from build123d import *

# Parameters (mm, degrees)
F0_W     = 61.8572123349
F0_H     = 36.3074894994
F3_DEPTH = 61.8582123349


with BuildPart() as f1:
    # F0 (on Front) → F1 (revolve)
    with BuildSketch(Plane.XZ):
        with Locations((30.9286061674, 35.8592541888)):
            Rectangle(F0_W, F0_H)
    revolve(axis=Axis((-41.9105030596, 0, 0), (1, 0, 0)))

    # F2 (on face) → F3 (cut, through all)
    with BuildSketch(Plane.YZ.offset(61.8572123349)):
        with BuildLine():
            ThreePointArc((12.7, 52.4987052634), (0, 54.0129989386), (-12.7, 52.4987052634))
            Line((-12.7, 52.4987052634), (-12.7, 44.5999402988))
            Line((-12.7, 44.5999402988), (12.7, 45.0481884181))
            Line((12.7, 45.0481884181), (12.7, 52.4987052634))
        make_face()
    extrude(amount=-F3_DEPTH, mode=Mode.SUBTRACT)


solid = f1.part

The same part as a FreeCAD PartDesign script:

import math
import FreeCAD as App
import Part
import Sketcher
from FreeCAD import Vector

doc = App.newDocument("Part")
body = doc.addObject("PartDesign::Body", "Body")

# Sketch on XZ plane
sketch1 = body.newObject("Sketcher::SketchObject", "Sketch")
sketch1.AttachmentSupport = (doc.getObject("XZ_Plane"), [""])
sketch1.MapMode = "FlatFace"
sketch1.addGeometry(Part.LineSegment(Vector(0, 54, 0), Vector(0, 18, 0)), False)
sketch1.addGeometry(Part.LineSegment(Vector(0, 18, 0), Vector(62, 18, 0)), False)
sketch1.addGeometry(Part.LineSegment(Vector(62, 18, 0), Vector(62, 54, 0)), False)
sketch1.addGeometry(Part.LineSegment(Vector(62, 54, 0), Vector(0, 54, 0)), False)
sketch1.addConstraint(Sketcher.Constraint("Coincident", 0, 2, 1, 1))
sketch1.addConstraint(Sketcher.Constraint("Coincident", 1, 2, 2, 1))
sketch1.addConstraint(Sketcher.Constraint("Coincident", 2, 2, 3, 1))
sketch1.addConstraint(Sketcher.Constraint("Coincident", 3, 2, 0, 1))
sketch1.addConstraint(Sketcher.Constraint("Vertical", 0))
sketch1.addConstraint(Sketcher.Constraint("Horizontal", 1))
sketch1.addConstraint(Sketcher.Constraint("Vertical", 2))
sketch1.addConstraint(Sketcher.Constraint("Horizontal", 3))
sketch1.addConstraint(Sketcher.Constraint("PointOnObject", 0, 2, -2))
sketch1.addConstraint(Sketcher.Constraint("DistanceY", -1, 1, 2, 2, 54.012999))
sketch1.addConstraint(Sketcher.Constraint("DistanceY", 0, 2, 0, 1, 36.30749))
sketch1.addConstraint(Sketcher.Constraint("DistanceX", 1, 1, 1, 2, 61.857212))
revolution = body.newObject("PartDesign::Revolution", "Revolution")
revolution.Profile = sketch1
revolution.ReferenceAxis = (sketch1, ["H_Axis"])
revolution.Angle = 360

# Sketch on YZ plane
sketch2 = body.newObject("Sketcher::SketchObject", "Sketch001")
sketch2.AttachmentSupport = (doc.getObject("YZ_Plane"), [""])
sketch2.MapMode = "FlatFace"
sketch2.AttachmentOffset = App.Placement(Vector(0, 0, 61.857212), App.Rotation())
sketch2.addGeometry(Part.ArcOfCircle(Part.Circle(Vector(0, 0, 0), Vector(0, 0, 1), 54), math.radians(76), math.radians(104)), False)
sketch2.addGeometry(Part.LineSegment(Vector(-13, 52, 0), Vector(-13, 45, 0)), False)
sketch2.addGeometry(Part.LineSegment(Vector(-13, 45, 0), Vector(13, 45, 0)), False)
sketch2.addGeometry(Part.LineSegment(Vector(13, 45, 0), Vector(13, 52, 0)), False)
sketch2.addConstraint(Sketcher.Constraint("Coincident", 0, 2, 1, 1))
sketch2.addConstraint(Sketcher.Constraint("Coincident", 1, 2, 2, 1))
sketch2.addConstraint(Sketcher.Constraint("Coincident", 2, 2, 3, 1))
sketch2.addConstraint(Sketcher.Constraint("Coincident", 3, 2, 0, 1))
sketch2.addConstraint(Sketcher.Constraint("Vertical", 1))
sketch2.addConstraint(Sketcher.Constraint("Vertical", 3))
sketch2.addConstraint(Sketcher.Constraint("Coincident", 0, 3, -1, 1))
sketch2.addConstraint(Sketcher.Constraint("Horizontal", 0, 2, 3, 2))
sketch2.addConstraint(Sketcher.Constraint("Radius", 0, 54.012999))
sketch2.addConstraint(Sketcher.Constraint("DistanceX", 0, 2, -1, 1, 12.7))
sketch2.addConstraint(Sketcher.Constraint("DistanceY", 1, 2, 1, 1, 7.898765))
sketch2.addConstraint(Sketcher.Constraint("DistanceY", 3, 1, 3, 2, 7.450517))
pocket1 = body.newObject("PartDesign::Pocket", "Pocket")
pocket1.Profile = sketch2
pocket1.Type = "ThroughAll"

doc.recompute()
